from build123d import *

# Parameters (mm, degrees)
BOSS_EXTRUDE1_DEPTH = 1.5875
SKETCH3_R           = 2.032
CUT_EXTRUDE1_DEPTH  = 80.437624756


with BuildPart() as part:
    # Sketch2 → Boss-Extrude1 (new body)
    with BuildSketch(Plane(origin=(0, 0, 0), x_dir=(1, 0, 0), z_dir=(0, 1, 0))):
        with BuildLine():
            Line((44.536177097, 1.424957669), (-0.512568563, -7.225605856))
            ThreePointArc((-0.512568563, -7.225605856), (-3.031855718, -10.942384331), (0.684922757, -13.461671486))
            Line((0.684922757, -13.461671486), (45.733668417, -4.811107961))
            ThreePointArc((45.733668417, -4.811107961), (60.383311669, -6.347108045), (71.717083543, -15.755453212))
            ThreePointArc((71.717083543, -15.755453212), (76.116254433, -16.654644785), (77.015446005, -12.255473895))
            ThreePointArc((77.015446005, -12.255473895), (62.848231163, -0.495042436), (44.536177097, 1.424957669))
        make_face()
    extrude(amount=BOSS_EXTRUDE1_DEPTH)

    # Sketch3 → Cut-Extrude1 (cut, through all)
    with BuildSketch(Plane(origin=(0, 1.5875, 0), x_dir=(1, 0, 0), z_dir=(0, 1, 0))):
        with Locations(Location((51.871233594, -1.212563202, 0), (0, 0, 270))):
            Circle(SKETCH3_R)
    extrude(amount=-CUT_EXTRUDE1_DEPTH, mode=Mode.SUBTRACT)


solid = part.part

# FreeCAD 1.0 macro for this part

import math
import FreeCAD as App
import Part
import Sketcher

V = App.Vector
Q = App.Units.Quantity

doc = App.newDocument("Part")
params = doc.addObject("Spreadsheet::Sheet", "Params")
for row, (alias, value) in enumerate([
    ("sketch1_radius", "1 in"),
    ("sketch1_radius2", "1.25 in"),
    ("pad1_length", "0.0625 in"),
    ("sketch2_diameter", "0.16 in"),
], start=1):
    params.set(f"A{row}", alias)
    params.set(f"B{row}", "=" + value)
    params.setAlias(f"B{row}", alias)

body = doc.addObject("PartDesign::Body", "Body")

# Sketch on XZ plane
sketch1 = doc.addObject("Sketcher::SketchObject", "Sketch")
body.addObject(sketch1)
sketch1.AttachmentSupport = (doc.XZ_Plane, [""])
sketch1.MapMode = "FlatFace"
sketch1.addGeometry(Part.LineSegment(V(44.5, -1.4, 0), V(-0.5, 7.2, 0)), False)
sketch1.addGeometry(Part.ArcOfCircle(Part.Circle(V(0.1, 10.3, 0), V(0, 0, 1), 3.2), math.radians(79), math.radians(259)), False)
sketch1.addGeometry(Part.LineSegment(V(0.7, 13.5, 0), V(45.7, 4.8, 0)), False)
sketch1.addGeometry(Part.ArcOfCircle(Part.Circle(V(50.5, 29.8, 0), V(0, 0, 1), 25.4), math.radians(-101), math.radians(-33)), False)
sketch1.addGeometry(Part.ArcOfCircle(Part.Circle(V(74.4, 14, 0), V(0, 0, 1), 3.2), math.radians(-33), math.radians(147)), False)
sketch1.addGeometry(Part.ArcOfCircle(Part.Circle(V(50.5, 29.8, 0), V(0, 0, 1), 31.7), math.radians(-101), math.radians(-33)), False)
sketch1.addConstraint(Sketcher.Constraint("Tangent", 0, 2, 1, 2))
sketch1.addConstraint(Sketcher.Constraint("Tangent", 1, 1, 2, 1))
sketch1.addConstraint(Sketcher.Constraint("Tangent", 2, 2, 3, 1))
sketch1.addConstraint(Sketcher.Constraint("Tangent", 3, 2, 4, 2))
sketch1.addConstraint(Sketcher.Constraint("Tangent", 4, 1, 5, 2))
sketch1.addConstraint(Sketcher.Constraint("Tangent", 5, 1, 0, 1))
sketch1.addConstraint(Sketcher.Constraint("Coincident", 5, 3, 3, 3))
sketch1.addConstraint(Sketcher.Constraint("Equal", 1, 4))
sketch1.addConstraint(Sketcher.Constraint("Radius", 3, Q("1 in")))
sketch1.addConstraint(Sketcher.Constraint("Radius", 5, Q("1.25 in")))
sketch1.addConstraint(Sketcher.Constraint("Angle", 0, Q("169.129997 deg")))
sketch1.addConstraint(Sketcher.Constraint("DistanceY", 1, 1, 5, 3, 16.293699))
sketch1.addConstraint(Sketcher.Constraint("DistanceY", -1, 1, 1, 3, 10.343639))
sketch1.addConstraint(Sketcher.Constraint("DistanceX", 0, 2, -1, 1, 0.512569))
sketch1.addConstraint(Sketcher.Constraint("DistanceX", 3, 3, 4, 3, 23.842631))
sketch1.setExpression("Constraints[8]", "Params.sketch1_radius")
sketch1.setExpression("Constraints[9]", "Params.sketch1_radius2")
pad1 = doc.addObject("PartDesign::Pad", "Pad")
body.addObject(pad1)
pad1.Profile = sketch1
pad1.setExpression("Length", "Params.pad1_length")
pad1.Reversed = True

# Sketch on XZ plane
sketch2 = doc.addObject("Sketcher::SketchObject", "Sketch001")
body.addObject(sketch2)
sketch2.AttachmentSupport = (doc.XZ_Plane, [""])
sketch2.MapMode = "FlatFace"
sketch2.AttachmentOffset = App.Placement(V(0, 0, -0.0625 * 25.4), App.Rotation())
sketch2.addGeometry(Part.Circle(V(51.9, 1.2, 0), V(0, 0, 1), 2), False)
sketch2.addConstraint(Sketcher.Constraint("Diameter", 0, Q("0.16 in")))
sketch2.addConstraint(Sketcher.Constraint("DistanceX", -1, 1, 0, 3, 51.871234))
sketch2.addConstraint(Sketcher.Constraint("DistanceY", -1, 1, 0, 3, 1.212563))
sketch2.setExpression("Constraints[0]", "Params.sketch2_diameter")
pocket1 = doc.addObject("PartDesign::Pocket", "Pocket")
body.addObject(pocket1)
pocket1.Profile = sketch2
pocket1.Type = "ThroughAll"
pocket1.Reversed = True

doc.recompute()
